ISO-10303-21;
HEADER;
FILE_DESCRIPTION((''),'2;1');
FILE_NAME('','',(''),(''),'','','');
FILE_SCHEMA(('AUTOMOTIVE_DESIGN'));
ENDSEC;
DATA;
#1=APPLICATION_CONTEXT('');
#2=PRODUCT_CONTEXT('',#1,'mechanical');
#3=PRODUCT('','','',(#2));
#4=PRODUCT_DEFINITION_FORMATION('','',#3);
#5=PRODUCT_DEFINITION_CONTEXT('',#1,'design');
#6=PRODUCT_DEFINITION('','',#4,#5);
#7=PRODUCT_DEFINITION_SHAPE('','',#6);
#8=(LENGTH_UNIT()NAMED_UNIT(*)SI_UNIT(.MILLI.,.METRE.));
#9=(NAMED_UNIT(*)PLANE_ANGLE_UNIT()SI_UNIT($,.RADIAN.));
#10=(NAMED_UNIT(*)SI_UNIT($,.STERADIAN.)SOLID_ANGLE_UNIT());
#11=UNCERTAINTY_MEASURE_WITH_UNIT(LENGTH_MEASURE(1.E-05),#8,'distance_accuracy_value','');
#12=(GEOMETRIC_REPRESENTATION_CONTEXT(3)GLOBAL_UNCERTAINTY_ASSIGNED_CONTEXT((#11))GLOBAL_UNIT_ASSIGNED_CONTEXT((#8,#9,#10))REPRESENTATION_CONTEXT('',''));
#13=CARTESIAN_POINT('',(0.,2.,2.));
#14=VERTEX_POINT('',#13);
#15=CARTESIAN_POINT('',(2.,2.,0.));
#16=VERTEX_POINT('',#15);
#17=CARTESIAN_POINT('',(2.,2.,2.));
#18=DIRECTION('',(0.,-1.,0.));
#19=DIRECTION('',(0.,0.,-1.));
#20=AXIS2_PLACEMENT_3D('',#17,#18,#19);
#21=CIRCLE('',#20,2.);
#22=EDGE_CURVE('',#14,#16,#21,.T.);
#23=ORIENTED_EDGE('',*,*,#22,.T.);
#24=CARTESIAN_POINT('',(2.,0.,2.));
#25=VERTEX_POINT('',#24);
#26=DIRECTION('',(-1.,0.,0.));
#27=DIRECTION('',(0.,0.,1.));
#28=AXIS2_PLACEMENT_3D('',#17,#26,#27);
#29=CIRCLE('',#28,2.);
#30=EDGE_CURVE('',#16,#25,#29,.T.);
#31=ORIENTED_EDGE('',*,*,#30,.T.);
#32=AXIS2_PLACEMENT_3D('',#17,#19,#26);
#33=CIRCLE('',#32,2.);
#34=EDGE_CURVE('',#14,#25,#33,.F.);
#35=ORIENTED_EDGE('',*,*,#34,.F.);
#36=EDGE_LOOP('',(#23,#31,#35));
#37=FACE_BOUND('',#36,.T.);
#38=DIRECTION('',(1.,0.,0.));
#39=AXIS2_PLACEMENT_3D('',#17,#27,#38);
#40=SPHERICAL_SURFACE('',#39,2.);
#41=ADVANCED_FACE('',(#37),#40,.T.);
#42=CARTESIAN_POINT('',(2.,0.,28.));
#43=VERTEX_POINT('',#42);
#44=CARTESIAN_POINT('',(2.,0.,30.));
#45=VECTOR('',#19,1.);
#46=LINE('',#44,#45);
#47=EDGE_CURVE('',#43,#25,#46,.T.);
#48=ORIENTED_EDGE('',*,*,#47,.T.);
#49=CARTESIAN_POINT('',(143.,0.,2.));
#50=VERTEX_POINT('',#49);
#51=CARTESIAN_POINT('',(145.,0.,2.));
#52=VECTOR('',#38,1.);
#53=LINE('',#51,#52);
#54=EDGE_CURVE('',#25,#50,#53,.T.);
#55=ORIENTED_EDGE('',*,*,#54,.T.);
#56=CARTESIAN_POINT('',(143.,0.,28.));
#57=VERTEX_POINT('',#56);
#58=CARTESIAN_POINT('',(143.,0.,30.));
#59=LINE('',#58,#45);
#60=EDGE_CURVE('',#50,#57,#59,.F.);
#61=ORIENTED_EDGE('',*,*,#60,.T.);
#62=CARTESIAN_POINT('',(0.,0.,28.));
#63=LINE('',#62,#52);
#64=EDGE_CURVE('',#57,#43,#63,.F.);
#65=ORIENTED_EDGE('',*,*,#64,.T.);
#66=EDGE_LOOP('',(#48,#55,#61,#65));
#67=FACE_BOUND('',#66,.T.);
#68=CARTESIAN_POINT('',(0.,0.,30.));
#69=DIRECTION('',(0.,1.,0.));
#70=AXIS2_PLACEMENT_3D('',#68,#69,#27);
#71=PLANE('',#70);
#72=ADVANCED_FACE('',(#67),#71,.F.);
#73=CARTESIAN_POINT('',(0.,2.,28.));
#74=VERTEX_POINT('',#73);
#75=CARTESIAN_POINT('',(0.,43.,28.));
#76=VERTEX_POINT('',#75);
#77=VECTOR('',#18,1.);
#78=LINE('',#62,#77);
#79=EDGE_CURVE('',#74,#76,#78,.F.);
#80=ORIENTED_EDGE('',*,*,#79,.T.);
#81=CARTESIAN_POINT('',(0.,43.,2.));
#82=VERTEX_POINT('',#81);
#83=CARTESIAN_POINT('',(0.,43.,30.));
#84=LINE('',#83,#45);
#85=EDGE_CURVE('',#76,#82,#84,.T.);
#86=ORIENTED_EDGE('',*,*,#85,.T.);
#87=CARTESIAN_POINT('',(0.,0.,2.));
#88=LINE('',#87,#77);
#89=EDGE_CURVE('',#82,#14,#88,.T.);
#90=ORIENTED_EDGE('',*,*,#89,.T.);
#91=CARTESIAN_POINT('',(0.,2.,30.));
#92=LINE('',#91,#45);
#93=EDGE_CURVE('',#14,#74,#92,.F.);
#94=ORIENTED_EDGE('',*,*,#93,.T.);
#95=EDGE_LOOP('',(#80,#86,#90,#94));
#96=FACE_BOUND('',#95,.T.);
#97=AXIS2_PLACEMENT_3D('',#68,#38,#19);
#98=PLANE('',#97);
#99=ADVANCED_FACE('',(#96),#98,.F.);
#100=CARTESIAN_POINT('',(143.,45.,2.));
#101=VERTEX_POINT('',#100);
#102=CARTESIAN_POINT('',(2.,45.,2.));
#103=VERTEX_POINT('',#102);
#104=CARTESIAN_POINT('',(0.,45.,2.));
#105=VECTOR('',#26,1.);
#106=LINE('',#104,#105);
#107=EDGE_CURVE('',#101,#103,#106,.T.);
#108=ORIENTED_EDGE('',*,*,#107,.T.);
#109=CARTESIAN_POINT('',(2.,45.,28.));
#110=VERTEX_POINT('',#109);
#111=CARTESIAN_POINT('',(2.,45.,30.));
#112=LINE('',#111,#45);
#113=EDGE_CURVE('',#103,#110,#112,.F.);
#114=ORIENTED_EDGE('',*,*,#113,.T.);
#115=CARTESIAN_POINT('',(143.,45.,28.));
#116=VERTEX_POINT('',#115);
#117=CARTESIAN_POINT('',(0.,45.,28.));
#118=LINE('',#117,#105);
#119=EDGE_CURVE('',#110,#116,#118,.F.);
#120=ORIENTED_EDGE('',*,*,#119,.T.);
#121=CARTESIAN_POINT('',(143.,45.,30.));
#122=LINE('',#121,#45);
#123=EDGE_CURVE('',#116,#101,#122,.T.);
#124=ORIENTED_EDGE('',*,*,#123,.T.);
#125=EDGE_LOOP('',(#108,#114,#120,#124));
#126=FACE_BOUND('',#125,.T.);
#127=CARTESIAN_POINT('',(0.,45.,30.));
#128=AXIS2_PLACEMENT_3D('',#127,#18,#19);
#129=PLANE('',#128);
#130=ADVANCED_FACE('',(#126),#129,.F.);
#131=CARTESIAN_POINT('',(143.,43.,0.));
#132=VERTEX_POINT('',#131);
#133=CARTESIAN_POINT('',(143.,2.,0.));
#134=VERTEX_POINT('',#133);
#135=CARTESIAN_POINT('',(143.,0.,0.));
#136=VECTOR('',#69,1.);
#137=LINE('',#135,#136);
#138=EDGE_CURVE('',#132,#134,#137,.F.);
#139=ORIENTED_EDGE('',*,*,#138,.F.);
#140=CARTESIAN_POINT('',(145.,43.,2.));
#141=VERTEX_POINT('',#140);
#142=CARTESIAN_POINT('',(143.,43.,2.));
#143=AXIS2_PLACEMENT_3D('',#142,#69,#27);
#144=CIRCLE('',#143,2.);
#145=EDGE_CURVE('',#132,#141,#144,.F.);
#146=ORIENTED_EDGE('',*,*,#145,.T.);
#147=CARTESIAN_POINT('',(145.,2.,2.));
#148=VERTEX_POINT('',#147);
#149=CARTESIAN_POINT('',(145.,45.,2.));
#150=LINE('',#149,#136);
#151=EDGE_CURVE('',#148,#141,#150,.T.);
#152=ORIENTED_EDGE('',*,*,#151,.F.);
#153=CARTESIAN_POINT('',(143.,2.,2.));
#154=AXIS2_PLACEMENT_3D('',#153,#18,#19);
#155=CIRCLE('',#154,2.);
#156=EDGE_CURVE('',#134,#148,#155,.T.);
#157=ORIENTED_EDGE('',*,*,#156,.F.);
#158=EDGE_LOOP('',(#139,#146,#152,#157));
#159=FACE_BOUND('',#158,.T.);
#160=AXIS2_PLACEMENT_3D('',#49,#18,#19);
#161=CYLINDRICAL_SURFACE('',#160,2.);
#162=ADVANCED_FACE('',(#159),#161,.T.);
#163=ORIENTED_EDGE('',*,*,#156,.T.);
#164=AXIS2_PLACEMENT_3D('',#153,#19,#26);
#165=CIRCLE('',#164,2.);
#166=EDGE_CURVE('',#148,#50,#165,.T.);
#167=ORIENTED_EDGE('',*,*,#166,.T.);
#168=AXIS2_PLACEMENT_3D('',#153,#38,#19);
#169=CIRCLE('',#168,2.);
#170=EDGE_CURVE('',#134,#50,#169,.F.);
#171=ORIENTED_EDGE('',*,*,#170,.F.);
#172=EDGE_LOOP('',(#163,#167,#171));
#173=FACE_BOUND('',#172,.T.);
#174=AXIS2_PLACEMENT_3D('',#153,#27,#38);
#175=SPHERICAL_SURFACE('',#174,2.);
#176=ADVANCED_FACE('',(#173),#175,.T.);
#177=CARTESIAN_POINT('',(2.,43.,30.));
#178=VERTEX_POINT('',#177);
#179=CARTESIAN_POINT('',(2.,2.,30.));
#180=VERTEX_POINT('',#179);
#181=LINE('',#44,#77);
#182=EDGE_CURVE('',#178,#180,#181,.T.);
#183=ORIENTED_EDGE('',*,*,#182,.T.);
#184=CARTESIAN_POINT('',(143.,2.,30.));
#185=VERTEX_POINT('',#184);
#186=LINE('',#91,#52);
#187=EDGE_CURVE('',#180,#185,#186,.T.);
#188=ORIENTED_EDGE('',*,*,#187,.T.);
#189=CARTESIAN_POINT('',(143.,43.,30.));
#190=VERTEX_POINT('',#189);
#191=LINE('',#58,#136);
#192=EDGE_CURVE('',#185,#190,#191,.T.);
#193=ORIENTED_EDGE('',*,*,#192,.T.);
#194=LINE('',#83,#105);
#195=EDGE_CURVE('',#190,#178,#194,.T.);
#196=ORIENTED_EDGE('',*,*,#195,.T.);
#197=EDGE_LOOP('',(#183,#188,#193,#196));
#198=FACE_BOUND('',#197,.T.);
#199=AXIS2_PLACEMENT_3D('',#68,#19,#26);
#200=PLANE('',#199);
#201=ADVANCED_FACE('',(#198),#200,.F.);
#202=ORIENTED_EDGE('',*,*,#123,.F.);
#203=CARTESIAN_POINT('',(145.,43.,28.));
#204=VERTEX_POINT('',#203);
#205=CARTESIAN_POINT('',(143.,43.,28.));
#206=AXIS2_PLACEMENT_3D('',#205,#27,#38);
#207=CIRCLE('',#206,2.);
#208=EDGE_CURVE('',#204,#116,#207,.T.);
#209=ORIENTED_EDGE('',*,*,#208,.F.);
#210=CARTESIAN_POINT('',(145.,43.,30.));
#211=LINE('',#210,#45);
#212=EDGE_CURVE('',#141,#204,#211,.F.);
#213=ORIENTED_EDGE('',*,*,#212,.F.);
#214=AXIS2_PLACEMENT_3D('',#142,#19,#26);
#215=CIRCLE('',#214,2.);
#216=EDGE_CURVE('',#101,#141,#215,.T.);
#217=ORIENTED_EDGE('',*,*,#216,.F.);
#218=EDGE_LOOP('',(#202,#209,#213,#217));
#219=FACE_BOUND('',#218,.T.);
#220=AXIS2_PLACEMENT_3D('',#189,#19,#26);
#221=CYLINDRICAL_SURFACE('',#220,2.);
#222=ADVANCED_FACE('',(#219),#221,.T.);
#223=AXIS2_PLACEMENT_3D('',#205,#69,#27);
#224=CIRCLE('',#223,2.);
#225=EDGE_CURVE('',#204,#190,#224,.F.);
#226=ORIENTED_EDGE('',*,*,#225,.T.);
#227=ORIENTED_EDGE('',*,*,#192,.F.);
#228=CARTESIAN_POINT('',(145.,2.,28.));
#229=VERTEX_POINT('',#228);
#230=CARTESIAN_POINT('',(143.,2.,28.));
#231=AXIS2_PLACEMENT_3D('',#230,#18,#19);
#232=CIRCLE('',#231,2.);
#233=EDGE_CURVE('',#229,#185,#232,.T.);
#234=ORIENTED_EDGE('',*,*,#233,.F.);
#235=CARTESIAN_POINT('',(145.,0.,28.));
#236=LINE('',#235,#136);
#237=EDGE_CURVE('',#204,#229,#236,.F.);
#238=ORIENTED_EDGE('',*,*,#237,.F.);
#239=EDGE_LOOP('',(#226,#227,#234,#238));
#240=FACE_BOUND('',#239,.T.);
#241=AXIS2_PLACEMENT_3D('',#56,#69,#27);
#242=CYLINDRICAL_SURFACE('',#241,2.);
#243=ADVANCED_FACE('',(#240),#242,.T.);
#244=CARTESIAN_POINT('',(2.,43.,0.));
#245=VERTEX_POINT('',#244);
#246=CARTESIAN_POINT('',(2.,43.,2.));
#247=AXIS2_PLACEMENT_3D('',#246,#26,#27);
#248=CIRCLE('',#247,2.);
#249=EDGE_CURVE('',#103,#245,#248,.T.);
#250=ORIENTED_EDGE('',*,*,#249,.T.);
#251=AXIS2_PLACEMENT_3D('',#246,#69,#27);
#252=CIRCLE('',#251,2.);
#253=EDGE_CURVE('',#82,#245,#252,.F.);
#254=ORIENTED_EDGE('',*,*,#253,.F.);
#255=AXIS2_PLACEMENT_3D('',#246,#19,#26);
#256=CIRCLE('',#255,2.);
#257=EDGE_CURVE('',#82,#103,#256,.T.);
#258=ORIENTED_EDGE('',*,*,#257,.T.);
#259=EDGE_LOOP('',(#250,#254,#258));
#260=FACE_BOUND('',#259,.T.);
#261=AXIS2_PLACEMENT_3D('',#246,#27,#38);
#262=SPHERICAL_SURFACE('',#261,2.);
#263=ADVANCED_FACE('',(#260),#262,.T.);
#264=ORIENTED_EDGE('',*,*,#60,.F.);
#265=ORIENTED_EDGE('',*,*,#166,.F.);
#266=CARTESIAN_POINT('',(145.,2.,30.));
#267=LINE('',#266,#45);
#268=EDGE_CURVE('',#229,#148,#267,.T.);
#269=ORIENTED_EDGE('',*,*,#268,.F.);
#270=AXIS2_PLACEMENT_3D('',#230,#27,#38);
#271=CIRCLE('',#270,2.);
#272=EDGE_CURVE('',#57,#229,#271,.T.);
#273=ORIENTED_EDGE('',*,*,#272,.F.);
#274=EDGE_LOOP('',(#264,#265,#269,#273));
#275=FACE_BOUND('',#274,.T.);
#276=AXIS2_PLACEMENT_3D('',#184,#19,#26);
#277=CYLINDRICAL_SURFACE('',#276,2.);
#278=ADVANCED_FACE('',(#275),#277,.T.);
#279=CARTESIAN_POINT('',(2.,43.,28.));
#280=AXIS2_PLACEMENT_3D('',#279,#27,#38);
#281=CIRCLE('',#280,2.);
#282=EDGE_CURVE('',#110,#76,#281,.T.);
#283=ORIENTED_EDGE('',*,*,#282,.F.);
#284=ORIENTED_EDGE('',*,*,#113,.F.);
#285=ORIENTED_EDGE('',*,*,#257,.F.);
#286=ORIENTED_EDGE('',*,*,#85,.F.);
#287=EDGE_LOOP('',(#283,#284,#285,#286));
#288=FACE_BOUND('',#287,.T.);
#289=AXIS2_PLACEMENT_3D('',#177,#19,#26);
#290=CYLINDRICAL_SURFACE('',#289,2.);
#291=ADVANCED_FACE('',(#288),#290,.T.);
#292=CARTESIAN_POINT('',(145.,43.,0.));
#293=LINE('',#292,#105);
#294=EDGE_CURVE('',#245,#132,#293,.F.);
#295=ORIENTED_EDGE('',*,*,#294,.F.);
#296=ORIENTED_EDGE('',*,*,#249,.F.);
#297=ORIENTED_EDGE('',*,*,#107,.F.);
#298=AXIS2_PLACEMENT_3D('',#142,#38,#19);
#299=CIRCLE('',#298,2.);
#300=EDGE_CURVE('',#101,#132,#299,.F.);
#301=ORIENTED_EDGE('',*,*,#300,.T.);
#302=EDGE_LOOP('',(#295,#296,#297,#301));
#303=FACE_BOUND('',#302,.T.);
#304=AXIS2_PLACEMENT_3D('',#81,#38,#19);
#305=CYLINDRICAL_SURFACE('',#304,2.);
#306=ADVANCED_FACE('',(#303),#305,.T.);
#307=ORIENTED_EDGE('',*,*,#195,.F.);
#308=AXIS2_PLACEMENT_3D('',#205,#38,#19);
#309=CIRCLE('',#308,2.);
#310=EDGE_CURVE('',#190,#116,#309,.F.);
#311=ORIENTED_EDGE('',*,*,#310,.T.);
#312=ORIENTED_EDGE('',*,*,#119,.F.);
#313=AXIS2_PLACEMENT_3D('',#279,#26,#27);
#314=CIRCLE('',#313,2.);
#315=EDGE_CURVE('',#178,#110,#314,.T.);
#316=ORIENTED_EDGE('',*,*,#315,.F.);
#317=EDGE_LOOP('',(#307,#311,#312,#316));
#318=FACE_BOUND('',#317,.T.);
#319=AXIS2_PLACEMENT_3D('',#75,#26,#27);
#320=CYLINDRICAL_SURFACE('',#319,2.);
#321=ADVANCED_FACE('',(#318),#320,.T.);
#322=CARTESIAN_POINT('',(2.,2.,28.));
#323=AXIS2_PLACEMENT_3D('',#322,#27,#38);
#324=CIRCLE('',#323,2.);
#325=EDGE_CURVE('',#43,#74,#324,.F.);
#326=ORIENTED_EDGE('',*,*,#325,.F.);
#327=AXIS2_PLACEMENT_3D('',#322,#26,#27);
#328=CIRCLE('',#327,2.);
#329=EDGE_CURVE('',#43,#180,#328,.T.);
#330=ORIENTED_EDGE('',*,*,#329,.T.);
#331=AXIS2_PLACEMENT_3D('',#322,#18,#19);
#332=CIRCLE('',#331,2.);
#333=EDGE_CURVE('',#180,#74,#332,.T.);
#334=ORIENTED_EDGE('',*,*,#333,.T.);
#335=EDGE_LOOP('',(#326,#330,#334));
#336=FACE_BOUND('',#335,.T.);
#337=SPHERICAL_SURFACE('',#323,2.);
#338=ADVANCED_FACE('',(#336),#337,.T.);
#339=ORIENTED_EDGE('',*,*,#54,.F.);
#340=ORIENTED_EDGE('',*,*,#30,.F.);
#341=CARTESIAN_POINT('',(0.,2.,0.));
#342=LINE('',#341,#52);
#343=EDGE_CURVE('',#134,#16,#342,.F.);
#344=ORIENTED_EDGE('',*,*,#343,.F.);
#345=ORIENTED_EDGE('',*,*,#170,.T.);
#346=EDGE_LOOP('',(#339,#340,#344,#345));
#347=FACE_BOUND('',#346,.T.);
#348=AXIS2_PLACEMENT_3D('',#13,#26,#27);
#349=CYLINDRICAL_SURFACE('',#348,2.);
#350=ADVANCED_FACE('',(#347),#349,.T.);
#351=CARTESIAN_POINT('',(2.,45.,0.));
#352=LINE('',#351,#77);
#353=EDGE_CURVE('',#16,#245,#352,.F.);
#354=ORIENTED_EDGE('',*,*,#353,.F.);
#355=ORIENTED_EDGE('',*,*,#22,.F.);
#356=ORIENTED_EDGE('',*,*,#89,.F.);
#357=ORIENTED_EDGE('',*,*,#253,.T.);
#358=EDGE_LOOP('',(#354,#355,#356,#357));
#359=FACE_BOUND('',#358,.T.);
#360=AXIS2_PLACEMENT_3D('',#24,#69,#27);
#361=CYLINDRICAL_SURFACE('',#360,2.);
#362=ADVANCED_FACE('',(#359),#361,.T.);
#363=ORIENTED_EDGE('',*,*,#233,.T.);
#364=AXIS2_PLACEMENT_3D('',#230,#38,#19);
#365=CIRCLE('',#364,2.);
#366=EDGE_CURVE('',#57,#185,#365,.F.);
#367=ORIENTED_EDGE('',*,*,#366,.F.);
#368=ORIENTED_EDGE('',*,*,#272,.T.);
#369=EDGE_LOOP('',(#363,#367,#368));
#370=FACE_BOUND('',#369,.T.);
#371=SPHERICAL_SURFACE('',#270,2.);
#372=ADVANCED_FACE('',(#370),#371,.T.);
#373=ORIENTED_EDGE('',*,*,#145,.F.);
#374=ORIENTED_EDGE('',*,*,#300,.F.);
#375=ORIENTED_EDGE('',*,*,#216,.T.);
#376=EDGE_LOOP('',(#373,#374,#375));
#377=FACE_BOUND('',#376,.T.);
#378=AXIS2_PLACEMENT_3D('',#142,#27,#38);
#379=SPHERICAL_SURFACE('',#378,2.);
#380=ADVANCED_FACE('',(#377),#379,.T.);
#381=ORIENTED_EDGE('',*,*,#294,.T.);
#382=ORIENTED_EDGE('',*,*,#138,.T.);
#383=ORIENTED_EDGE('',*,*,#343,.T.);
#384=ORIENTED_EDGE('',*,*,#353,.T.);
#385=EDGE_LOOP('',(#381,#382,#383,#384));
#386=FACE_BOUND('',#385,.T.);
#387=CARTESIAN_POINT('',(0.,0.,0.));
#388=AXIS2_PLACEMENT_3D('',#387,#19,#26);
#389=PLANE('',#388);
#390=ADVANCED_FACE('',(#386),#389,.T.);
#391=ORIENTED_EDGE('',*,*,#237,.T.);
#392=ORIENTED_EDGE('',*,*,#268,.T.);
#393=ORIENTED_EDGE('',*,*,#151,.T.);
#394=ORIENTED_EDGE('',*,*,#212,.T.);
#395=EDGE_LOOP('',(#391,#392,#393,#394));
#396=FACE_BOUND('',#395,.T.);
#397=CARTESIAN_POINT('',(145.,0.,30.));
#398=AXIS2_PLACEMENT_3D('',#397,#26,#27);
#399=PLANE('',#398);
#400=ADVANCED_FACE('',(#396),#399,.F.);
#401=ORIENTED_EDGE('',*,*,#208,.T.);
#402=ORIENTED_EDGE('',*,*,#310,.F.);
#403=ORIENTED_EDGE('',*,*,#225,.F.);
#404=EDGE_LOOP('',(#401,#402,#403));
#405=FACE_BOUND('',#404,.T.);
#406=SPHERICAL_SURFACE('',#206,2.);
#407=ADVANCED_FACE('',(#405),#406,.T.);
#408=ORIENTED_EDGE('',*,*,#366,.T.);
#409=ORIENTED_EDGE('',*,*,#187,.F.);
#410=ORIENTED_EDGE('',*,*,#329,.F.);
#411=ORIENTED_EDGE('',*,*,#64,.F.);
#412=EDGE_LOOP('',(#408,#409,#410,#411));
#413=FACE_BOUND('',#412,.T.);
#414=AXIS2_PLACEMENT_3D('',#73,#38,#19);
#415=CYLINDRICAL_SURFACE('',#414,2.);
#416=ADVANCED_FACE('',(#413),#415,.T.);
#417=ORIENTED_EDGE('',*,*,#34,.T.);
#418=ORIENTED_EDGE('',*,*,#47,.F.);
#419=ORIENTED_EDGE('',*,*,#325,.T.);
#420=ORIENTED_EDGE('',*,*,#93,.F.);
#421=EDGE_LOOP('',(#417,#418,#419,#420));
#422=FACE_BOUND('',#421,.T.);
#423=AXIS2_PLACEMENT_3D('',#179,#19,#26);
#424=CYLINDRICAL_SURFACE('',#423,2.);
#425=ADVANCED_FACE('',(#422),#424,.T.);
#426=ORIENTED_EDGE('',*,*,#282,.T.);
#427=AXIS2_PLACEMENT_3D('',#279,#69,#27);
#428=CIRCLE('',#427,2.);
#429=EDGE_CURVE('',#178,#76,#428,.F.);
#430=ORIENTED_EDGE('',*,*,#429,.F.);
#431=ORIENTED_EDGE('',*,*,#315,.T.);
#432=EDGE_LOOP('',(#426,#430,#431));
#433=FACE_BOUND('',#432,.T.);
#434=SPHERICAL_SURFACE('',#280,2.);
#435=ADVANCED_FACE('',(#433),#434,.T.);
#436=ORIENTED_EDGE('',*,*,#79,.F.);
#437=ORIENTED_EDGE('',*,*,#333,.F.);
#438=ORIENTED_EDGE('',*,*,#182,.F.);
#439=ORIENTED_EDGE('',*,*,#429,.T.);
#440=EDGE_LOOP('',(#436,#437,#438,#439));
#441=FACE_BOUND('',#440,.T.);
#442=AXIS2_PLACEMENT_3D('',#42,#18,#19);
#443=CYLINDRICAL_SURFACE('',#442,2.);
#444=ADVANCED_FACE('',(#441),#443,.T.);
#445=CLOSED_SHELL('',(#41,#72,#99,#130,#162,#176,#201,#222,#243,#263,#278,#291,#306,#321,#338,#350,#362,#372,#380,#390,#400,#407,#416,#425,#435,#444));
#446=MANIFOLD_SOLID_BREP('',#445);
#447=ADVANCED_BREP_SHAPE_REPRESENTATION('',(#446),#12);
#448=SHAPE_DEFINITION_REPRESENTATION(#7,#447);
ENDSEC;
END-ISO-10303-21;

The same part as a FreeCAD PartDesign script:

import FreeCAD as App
import Part
import Sketcher
Q = App.Units.Quantity

doc = App.newDocument("Part")
body = doc.addObject("PartDesign::Body", "Body")

# Sketch on XY plane
sketch1 = body.newObject("Sketcher::SketchObject", "Sketch")
sketch1.AttachmentSupport = (doc.getObject("XY_Plane"), [""])
sketch1.MapMode = "FlatFace"
sketch1.addGeometry([
    Part.LineSegment(App.Vector(0, 45, 0), App.Vector(0, 0, 0)),
    Part.LineSegment(App.Vector(0, 0, 0), App.Vector(145, 0, 0)),
    Part.LineSegment(App.Vector(145, 0, 0), App.Vector(145, 45, 0)),
    Part.LineSegment(App.Vector(145, 45, 0), App.Vector(0, 45, 0)),
], False)
sketch1.addConstraint([
    Sketcher.Constraint("Coincident", 0, 2, 1, 1),
    Sketcher.Constraint("Coincident", 1, 2, 2, 1),
    Sketcher.Constraint("Coincident", 2, 2, 3, 1),
    Sketcher.Constraint("Coincident", 3, 2, 0, 1),
    Sketcher.Constraint("Vertical", 0),
    Sketcher.Constraint("Horizontal", 1),
    Sketcher.Constraint("Vertical", 2),
    Sketcher.Constraint("Horizontal", 3),
    Sketcher.Constraint("Coincident", 0, 2, -1, 1),
    Sketcher.Constraint("DistanceX", 1, 1, 1, 2, Q("145 mm")),
    Sketcher.Constraint("DistanceY", 0, 2, 0, 1, Q("45 mm")),
])
pad1 = body.newObject("PartDesign::Pad", "Pad")
pad1.Profile = sketch1
pad1.Length = 30
doc.recompute()

fillet = body.newObject("PartDesign::Fillet", "Fillet")
fillet.Base = (pad1, ["Edge1"])
fillet.UseAllEdges = True
fillet.Radius = 2

doc.recompute()
